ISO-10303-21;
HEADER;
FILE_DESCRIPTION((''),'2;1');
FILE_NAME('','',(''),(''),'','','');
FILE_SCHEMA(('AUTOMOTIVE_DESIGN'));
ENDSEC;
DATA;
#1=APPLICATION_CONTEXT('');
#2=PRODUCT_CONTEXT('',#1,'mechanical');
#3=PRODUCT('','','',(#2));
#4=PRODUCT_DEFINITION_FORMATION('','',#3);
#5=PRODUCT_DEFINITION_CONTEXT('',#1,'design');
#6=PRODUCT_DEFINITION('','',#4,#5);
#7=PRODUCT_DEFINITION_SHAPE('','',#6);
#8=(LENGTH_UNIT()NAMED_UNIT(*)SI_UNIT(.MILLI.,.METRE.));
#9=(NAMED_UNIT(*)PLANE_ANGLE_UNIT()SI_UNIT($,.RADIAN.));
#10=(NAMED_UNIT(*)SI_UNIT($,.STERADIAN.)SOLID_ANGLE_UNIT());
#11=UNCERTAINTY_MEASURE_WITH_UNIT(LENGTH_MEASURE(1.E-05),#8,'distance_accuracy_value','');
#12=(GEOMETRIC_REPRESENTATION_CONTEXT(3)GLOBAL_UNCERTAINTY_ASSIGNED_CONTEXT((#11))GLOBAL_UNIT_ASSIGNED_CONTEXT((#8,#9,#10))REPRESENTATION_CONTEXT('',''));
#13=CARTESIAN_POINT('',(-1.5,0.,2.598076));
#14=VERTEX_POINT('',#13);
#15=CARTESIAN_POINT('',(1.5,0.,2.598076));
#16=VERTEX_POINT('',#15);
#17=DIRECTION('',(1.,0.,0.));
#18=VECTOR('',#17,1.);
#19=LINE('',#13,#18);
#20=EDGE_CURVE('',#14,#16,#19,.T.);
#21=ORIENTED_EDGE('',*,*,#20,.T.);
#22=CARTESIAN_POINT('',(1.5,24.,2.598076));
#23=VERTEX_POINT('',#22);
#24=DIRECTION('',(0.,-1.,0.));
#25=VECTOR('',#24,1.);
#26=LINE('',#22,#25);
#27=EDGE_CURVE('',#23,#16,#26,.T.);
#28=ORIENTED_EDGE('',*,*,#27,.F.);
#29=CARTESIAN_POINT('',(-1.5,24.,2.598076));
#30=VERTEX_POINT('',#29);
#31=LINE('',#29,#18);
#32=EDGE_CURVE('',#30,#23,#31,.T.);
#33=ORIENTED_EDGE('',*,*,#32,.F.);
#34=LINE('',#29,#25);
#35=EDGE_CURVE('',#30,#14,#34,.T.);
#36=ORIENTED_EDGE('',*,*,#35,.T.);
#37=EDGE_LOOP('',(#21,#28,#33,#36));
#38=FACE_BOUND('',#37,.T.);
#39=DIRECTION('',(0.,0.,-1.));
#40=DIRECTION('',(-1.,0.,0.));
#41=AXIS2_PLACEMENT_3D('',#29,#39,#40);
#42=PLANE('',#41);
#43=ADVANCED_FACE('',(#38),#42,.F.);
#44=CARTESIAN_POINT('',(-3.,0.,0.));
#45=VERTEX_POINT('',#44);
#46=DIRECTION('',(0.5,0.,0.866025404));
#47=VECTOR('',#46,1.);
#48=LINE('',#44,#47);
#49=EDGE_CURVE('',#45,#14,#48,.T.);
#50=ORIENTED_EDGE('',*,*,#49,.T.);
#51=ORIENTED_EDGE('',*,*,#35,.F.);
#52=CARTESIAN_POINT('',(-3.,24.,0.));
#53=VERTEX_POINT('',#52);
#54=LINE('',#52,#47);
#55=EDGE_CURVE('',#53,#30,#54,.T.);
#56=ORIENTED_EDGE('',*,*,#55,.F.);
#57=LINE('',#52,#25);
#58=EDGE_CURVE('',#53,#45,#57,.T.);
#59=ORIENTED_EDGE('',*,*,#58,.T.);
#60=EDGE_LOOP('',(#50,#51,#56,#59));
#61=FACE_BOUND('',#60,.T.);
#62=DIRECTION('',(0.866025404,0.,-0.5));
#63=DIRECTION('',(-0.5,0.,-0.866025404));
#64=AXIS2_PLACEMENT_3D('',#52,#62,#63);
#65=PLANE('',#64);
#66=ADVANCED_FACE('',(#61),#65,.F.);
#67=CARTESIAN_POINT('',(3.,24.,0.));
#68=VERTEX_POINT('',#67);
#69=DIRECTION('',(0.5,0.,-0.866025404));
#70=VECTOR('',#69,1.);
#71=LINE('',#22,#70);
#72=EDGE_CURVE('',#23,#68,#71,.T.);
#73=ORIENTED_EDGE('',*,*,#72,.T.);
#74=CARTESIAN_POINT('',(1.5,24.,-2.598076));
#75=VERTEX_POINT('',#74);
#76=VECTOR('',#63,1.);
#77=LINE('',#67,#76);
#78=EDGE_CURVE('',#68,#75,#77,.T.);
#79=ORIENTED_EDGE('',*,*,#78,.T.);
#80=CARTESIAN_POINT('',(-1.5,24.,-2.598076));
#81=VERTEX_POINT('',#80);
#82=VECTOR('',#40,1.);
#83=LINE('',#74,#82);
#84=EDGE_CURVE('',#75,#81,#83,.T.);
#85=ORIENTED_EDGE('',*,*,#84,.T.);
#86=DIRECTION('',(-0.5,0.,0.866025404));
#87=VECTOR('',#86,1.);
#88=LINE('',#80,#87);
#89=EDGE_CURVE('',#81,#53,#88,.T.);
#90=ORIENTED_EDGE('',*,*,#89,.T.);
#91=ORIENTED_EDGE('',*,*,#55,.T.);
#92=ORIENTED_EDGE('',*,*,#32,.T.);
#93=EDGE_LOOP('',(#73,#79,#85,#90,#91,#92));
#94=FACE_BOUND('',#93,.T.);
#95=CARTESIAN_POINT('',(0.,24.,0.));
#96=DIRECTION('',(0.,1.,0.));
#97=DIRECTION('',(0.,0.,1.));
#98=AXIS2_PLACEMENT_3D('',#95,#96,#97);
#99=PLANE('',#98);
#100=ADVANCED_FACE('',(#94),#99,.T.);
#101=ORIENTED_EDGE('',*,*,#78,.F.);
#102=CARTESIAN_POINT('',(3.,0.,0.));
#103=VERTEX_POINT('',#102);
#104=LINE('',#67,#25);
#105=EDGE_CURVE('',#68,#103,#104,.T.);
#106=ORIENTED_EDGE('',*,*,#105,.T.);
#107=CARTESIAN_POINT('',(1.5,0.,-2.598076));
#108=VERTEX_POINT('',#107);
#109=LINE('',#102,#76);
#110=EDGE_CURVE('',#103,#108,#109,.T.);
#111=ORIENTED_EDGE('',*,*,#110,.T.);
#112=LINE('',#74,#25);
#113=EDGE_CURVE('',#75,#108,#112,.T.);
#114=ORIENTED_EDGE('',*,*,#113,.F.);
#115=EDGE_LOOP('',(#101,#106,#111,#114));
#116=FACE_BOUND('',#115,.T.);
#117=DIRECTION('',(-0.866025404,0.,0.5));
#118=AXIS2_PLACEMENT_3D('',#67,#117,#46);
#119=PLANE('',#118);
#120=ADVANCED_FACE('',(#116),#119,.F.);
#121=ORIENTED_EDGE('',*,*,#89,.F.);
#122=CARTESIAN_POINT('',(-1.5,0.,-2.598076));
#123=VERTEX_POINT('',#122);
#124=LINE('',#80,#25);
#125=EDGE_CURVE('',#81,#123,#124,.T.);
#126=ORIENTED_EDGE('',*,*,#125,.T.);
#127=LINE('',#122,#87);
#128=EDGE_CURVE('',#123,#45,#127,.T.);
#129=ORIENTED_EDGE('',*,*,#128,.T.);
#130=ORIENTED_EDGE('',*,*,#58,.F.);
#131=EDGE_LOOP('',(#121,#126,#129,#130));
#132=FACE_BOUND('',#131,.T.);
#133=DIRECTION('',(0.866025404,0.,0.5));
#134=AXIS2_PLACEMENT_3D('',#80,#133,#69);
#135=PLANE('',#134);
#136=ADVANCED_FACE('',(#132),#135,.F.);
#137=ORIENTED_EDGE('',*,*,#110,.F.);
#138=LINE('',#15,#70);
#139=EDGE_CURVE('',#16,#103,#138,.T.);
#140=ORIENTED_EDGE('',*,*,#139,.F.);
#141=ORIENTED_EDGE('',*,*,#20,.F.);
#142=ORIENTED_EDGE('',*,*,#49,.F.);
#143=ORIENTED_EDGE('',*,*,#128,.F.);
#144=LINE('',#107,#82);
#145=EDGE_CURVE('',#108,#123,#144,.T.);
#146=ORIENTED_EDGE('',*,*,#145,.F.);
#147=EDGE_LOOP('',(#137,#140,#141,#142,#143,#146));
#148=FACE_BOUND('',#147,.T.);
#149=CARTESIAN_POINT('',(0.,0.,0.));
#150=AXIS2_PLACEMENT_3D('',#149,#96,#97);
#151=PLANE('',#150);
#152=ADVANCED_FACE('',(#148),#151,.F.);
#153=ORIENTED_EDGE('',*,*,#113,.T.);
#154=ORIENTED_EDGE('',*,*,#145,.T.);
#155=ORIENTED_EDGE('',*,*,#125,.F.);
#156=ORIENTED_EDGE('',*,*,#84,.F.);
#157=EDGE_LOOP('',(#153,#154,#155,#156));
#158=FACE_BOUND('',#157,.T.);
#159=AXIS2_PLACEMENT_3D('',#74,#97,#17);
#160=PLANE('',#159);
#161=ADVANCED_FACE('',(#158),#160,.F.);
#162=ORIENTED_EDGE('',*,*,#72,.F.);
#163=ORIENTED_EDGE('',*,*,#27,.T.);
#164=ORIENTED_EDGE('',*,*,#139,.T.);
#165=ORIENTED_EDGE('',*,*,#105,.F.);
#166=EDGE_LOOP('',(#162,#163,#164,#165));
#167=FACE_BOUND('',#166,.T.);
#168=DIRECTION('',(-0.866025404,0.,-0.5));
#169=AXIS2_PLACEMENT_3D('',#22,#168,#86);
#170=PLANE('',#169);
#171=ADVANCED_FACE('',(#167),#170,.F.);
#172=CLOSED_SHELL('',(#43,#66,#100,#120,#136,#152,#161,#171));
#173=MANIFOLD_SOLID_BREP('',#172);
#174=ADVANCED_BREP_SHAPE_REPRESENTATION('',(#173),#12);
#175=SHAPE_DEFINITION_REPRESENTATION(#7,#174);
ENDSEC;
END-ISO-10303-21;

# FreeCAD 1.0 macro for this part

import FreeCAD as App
import Part
import Sketcher
Q = App.Units.Quantity


def add_polygon(sketch, points):
    """Adds a closed chain of lines whose ends are joined by coincident constraints."""
    first, n = sketch.GeometryCount, len(points)
    for a, b in zip(points, points[1:] + points[:1]):
        sketch.addGeometry(Part.LineSegment(App.Vector(*a, 0), App.Vector(*b, 0)), False)
    for i in range(n):
        sketch.addConstraint(Sketcher.Constraint("Coincident", first + i, 2, first + (i + 1) % n, 1))

doc = App.newDocument("Part")
body = doc.addObject("PartDesign::Body", "Body")

sketch1 = body.newObject("Sketcher::SketchObject", "Sketch")
sketch1.AttachmentSupport = (doc.getObject("XZ_Plane"), [""])
sketch1.MapMode = "FlatFace"
add_polygon(sketch1, [(3, 0), (1.5, -2.6), (-1.5, -2.6), (-3, 0), (-1.5, 2.6), (1.5, 2.6)])
sketch1.addConstraint([
    Sketcher.Constraint("Horizontal", 1),
    Sketcher.Constraint("Horizontal", 4),
    Sketcher.Constraint("Symmetric", 0, 2, 3, 2, -1, 1),
    Sketcher.Constraint("Symmetric", 2, 2, 5, 2, -1, 1),
    Sketcher.Constraint("PointOnObject", 2, 2, -1),
    Sketcher.Constraint("Parallel", 2, 5),
    Sketcher.Constraint("Vertical", 1, 2, 3, 2),
    Sketcher.Constraint("DistanceX", 1, 2, 1, 1, 3.0),
    Sketcher.Constraint("Angle", 0, Q("-120 deg")),
    Sketcher.Constraint("Distance", 0, 3.0),
])
pad1 = body.newObject("PartDesign::Pad", "Pad")
pad1.Profile = sketch1
pad1.Length = 24
pad1.Reversed = True

doc.recompute()
